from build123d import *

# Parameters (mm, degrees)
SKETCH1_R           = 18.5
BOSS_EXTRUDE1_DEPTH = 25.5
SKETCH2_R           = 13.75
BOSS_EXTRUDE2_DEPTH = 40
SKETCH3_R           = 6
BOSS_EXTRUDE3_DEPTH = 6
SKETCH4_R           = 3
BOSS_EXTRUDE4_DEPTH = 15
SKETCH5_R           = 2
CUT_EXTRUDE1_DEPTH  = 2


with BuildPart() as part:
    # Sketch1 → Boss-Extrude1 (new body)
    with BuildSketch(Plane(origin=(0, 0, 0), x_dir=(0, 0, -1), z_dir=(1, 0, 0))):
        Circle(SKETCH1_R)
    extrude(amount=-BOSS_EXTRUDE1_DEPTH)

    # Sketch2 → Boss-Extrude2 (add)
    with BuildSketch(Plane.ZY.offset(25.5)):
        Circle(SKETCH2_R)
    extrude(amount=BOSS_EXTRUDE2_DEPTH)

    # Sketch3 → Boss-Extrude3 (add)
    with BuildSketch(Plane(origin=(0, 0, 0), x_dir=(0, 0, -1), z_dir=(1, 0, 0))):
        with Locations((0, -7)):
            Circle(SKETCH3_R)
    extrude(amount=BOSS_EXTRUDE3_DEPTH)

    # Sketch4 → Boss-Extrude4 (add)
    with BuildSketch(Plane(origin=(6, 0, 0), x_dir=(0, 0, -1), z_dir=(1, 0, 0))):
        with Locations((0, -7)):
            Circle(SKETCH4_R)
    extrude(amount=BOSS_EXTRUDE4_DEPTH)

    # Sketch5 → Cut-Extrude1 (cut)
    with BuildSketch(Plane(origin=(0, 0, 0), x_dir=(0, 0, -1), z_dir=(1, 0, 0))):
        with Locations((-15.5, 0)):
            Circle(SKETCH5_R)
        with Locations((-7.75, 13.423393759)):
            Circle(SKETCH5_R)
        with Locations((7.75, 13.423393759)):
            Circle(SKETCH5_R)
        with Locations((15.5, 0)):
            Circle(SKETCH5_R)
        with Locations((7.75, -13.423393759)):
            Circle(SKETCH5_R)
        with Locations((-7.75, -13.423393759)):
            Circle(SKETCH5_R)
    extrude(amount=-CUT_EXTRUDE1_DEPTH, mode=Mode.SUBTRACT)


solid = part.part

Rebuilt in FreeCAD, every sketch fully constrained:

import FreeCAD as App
import Part
import Sketcher

doc = App.newDocument("Part")
params = doc.addObject("Spreadsheet::Sheet", "Params")
for row, (alias, value) in enumerate([
    ("sketch1_diameter", "37 mm"),
    ("pad1_length", "25.5 mm"),
    ("sketch2_diameter", "27.5 mm"),
    ("pad2_length", "40 mm"),
    ("sketch3_diameter", "12 mm"),
    ("pad3_length", "6 mm"),
    ("sketch4_diameter", "6 mm"),
    ("pad4_length", "15 mm"),
    ("sketch5_diameter", "4 mm"),
    ("pocket1_length", "2 mm"),
], start=1):
    params.set(f"A{row}", alias)
    params.set(f"B{row}", "=" + value)
    params.setAlias(f"B{row}", alias)

body = doc.addObject("PartDesign::Body", "Body")

# Sketch on YZ plane
sketch1 = body.newObject("Sketcher::SketchObject", "Sketch")
sketch1.AttachmentSupport = (doc.getObject("YZ_Plane"), [""])
sketch1.MapMode = "FlatFace"
sketch1.addGeometry(Part.Circle(App.Vector(0, 0, 0), App.Vector(0, 0, 1), 18.5), False)
sketch1.addConstraint(Sketcher.Constraint("Coincident", 0, 3, -1, 1))
sketch1.addConstraint(Sketcher.Constraint("Diameter", 0, 37.0))
sketch1.setExpression("Constraints[1]", "Params.sketch1_diameter")
pad1 = body.newObject("PartDesign::Pad", "Pad")
pad1.Profile = sketch1
pad1.setExpression("Length", "Params.pad1_length")
pad1.Reversed = True

# Sketch on YZ plane
sketch2 = body.newObject("Sketcher::SketchObject", "Sketch001")
sketch2.AttachmentSupport = (doc.getObject("YZ_Plane"), [""])
sketch2.MapMode = "FlatFace"
sketch2.AttachmentOffset = App.Placement(App.Vector(0, 0, -25.5), App.Rotation())
sketch2.addGeometry(Part.Circle(App.Vector(0, 0, 0), App.Vector(0, 0, 1), 13.75), False)
sketch2.addConstraint(Sketcher.Constraint("Coincident", 0, 3, -1, 1))
sketch2.addConstraint(Sketcher.Constraint("Diameter", 0, 27.5))
sketch2.setExpression("Constraints[1]", "Params.sketch2_diameter")
pad2 = body.newObject("PartDesign::Pad", "Pad001")
pad2.Profile = sketch2
pad2.setExpression("Length", "Params.pad2_length")
pad2.Reversed = True

# Sketch on YZ plane
sketch3 = body.newObject("Sketcher::SketchObject", "Sketch002")
sketch3.AttachmentSupport = (doc.getObject("YZ_Plane"), [""])
sketch3.MapMode = "FlatFace"
sketch3.addGeometry(Part.Circle(App.Vector(-7, 0, 0), App.Vector(0, 0, 1), 6), False)
sketch3.addConstraint(Sketcher.Constraint("PointOnObject", 0, 3, -1))
sketch3.addConstraint(Sketcher.Constraint("Diameter", 0, 12.0))
sketch3.addConstraint(Sketcher.Constraint("DistanceX", 0, 3, -1, 1, 7.0))
sketch3.setExpression("Constraints[1]", "Params.sketch3_diameter")
pad3 = body.newObject("PartDesign::Pad", "Pad002")
pad3.Profile = sketch3
pad3.setExpression("Length", "Params.pad3_length")

# Sketch on YZ plane
sketch4 = body.newObject("Sketcher::SketchObject", "Sketch003")
sketch4.AttachmentSupport = (doc.getObject("YZ_Plane"), [""])
sketch4.MapMode = "FlatFace"
sketch4.AttachmentOffset = App.Placement(App.Vector(0, 0, 6), App.Rotation())
sketch4.addGeometry(Part.Circle(App.Vector(-7, 0, 0), App.Vector(0, 0, 1), 3), False)
sketch4.addConstraint(Sketcher.Constraint("PointOnObject", 0, 3, -1))
sketch4.addConstraint(Sketcher.Constraint("Diameter", 0, 6.0))
sketch4.addConstraint(Sketcher.Constraint("DistanceX", 0, 3, -1, 1, 7.0))
sketch4.setExpression("Constraints[1]", "Params.sketch4_diameter")
pad4 = body.newObject("PartDesign::Pad", "Pad003")
pad4.Profile = sketch4
pad4.setExpression("Length", "Params.pad4_length")

# Sketch on YZ plane
sketch5 = body.newObject("Sketcher::SketchObject", "Sketch004")
sketch5.AttachmentSupport = (doc.getObject("YZ_Plane"), [""])
sketch5.MapMode = "FlatFace"
sketch5.addGeometry(Part.Circle(App.Vector(0, 15.5, 0), App.Vector(0, 0, 1), 2), False)
sketch5.addGeometry(Part.Circle(App.Vector(13.423394, 7.75, 0), App.Vector(0, 0, 1), 2), False)
sketch5.addGeometry(Part.Circle(App.Vector(13.423394, -7.75, 0), App.Vector(0, 0, 1), 2), False)
sketch5.addGeometry(Part.Circle(App.Vector(0, -15.5, 0), App.Vector(0, 0, 1), 2), False)
sketch5.addGeometry(Part.Circle(App.Vector(-13.423394, -7.75, 0), App.Vector(0, 0, 1), 2), False)
sketch5.addGeometry(Part.Circle(App.Vector(-13.423394, 7.75, 0), App.Vector(0, 0, 1), 2), False)
sketch5.addConstraint(Sketcher.Constraint("Equal", 0, 1))
sketch5.addConstraint(Sketcher.Constraint("Equal", 1, 2))
sketch5.addConstraint(Sketcher.Constraint("Equal", 2, 3))
sketch5.addConstraint(Sketcher.Constraint("Equal", 3, 4))
sketch5.addConstraint(Sketcher.Constraint("Equal", 4, 5))
sketch5.addConstraint(Sketcher.Constraint("Symmetric", 0, 3, 3, 3, -1, 1))
sketch5.addConstraint(Sketcher.Constraint("Symmetric", 1, 3, 4, 3, -1, 1))
sketch5.addConstraint(Sketcher.Constraint("Symmetric", 2, 3, 5, 3, -1, 1))
sketch5.addConstraint(Sketcher.Constraint("Symmetric", 2, 3, 4, 3, -2))
sketch5.addConstraint(Sketcher.Constraint("PointOnObject", 0, 3, -2))
sketch5.addConstraint(Sketcher.Constraint("Diameter", 0, 4.0))
sketch5.addConstraint(Sketcher.Constraint("DistanceY", 3, 3, 0, 3, 31.0))
sketch5.addConstraint(Sketcher.Constraint("DistanceY", 2, 3, 1, 3, 15.5))
sketch5.addConstraint(Sketcher.Constraint("DistanceX", -1, 1, 1, 3, 13.423394))
sketch5.setExpression("Constraints[10]", "Params.sketch5_diameter")
pocket1 = body.newObject("PartDesign::Pocket", "Pocket")
pocket1.Profile = sketch5
pocket1.setExpression("Length", "Params.pocket1_length")

doc.recompute()
